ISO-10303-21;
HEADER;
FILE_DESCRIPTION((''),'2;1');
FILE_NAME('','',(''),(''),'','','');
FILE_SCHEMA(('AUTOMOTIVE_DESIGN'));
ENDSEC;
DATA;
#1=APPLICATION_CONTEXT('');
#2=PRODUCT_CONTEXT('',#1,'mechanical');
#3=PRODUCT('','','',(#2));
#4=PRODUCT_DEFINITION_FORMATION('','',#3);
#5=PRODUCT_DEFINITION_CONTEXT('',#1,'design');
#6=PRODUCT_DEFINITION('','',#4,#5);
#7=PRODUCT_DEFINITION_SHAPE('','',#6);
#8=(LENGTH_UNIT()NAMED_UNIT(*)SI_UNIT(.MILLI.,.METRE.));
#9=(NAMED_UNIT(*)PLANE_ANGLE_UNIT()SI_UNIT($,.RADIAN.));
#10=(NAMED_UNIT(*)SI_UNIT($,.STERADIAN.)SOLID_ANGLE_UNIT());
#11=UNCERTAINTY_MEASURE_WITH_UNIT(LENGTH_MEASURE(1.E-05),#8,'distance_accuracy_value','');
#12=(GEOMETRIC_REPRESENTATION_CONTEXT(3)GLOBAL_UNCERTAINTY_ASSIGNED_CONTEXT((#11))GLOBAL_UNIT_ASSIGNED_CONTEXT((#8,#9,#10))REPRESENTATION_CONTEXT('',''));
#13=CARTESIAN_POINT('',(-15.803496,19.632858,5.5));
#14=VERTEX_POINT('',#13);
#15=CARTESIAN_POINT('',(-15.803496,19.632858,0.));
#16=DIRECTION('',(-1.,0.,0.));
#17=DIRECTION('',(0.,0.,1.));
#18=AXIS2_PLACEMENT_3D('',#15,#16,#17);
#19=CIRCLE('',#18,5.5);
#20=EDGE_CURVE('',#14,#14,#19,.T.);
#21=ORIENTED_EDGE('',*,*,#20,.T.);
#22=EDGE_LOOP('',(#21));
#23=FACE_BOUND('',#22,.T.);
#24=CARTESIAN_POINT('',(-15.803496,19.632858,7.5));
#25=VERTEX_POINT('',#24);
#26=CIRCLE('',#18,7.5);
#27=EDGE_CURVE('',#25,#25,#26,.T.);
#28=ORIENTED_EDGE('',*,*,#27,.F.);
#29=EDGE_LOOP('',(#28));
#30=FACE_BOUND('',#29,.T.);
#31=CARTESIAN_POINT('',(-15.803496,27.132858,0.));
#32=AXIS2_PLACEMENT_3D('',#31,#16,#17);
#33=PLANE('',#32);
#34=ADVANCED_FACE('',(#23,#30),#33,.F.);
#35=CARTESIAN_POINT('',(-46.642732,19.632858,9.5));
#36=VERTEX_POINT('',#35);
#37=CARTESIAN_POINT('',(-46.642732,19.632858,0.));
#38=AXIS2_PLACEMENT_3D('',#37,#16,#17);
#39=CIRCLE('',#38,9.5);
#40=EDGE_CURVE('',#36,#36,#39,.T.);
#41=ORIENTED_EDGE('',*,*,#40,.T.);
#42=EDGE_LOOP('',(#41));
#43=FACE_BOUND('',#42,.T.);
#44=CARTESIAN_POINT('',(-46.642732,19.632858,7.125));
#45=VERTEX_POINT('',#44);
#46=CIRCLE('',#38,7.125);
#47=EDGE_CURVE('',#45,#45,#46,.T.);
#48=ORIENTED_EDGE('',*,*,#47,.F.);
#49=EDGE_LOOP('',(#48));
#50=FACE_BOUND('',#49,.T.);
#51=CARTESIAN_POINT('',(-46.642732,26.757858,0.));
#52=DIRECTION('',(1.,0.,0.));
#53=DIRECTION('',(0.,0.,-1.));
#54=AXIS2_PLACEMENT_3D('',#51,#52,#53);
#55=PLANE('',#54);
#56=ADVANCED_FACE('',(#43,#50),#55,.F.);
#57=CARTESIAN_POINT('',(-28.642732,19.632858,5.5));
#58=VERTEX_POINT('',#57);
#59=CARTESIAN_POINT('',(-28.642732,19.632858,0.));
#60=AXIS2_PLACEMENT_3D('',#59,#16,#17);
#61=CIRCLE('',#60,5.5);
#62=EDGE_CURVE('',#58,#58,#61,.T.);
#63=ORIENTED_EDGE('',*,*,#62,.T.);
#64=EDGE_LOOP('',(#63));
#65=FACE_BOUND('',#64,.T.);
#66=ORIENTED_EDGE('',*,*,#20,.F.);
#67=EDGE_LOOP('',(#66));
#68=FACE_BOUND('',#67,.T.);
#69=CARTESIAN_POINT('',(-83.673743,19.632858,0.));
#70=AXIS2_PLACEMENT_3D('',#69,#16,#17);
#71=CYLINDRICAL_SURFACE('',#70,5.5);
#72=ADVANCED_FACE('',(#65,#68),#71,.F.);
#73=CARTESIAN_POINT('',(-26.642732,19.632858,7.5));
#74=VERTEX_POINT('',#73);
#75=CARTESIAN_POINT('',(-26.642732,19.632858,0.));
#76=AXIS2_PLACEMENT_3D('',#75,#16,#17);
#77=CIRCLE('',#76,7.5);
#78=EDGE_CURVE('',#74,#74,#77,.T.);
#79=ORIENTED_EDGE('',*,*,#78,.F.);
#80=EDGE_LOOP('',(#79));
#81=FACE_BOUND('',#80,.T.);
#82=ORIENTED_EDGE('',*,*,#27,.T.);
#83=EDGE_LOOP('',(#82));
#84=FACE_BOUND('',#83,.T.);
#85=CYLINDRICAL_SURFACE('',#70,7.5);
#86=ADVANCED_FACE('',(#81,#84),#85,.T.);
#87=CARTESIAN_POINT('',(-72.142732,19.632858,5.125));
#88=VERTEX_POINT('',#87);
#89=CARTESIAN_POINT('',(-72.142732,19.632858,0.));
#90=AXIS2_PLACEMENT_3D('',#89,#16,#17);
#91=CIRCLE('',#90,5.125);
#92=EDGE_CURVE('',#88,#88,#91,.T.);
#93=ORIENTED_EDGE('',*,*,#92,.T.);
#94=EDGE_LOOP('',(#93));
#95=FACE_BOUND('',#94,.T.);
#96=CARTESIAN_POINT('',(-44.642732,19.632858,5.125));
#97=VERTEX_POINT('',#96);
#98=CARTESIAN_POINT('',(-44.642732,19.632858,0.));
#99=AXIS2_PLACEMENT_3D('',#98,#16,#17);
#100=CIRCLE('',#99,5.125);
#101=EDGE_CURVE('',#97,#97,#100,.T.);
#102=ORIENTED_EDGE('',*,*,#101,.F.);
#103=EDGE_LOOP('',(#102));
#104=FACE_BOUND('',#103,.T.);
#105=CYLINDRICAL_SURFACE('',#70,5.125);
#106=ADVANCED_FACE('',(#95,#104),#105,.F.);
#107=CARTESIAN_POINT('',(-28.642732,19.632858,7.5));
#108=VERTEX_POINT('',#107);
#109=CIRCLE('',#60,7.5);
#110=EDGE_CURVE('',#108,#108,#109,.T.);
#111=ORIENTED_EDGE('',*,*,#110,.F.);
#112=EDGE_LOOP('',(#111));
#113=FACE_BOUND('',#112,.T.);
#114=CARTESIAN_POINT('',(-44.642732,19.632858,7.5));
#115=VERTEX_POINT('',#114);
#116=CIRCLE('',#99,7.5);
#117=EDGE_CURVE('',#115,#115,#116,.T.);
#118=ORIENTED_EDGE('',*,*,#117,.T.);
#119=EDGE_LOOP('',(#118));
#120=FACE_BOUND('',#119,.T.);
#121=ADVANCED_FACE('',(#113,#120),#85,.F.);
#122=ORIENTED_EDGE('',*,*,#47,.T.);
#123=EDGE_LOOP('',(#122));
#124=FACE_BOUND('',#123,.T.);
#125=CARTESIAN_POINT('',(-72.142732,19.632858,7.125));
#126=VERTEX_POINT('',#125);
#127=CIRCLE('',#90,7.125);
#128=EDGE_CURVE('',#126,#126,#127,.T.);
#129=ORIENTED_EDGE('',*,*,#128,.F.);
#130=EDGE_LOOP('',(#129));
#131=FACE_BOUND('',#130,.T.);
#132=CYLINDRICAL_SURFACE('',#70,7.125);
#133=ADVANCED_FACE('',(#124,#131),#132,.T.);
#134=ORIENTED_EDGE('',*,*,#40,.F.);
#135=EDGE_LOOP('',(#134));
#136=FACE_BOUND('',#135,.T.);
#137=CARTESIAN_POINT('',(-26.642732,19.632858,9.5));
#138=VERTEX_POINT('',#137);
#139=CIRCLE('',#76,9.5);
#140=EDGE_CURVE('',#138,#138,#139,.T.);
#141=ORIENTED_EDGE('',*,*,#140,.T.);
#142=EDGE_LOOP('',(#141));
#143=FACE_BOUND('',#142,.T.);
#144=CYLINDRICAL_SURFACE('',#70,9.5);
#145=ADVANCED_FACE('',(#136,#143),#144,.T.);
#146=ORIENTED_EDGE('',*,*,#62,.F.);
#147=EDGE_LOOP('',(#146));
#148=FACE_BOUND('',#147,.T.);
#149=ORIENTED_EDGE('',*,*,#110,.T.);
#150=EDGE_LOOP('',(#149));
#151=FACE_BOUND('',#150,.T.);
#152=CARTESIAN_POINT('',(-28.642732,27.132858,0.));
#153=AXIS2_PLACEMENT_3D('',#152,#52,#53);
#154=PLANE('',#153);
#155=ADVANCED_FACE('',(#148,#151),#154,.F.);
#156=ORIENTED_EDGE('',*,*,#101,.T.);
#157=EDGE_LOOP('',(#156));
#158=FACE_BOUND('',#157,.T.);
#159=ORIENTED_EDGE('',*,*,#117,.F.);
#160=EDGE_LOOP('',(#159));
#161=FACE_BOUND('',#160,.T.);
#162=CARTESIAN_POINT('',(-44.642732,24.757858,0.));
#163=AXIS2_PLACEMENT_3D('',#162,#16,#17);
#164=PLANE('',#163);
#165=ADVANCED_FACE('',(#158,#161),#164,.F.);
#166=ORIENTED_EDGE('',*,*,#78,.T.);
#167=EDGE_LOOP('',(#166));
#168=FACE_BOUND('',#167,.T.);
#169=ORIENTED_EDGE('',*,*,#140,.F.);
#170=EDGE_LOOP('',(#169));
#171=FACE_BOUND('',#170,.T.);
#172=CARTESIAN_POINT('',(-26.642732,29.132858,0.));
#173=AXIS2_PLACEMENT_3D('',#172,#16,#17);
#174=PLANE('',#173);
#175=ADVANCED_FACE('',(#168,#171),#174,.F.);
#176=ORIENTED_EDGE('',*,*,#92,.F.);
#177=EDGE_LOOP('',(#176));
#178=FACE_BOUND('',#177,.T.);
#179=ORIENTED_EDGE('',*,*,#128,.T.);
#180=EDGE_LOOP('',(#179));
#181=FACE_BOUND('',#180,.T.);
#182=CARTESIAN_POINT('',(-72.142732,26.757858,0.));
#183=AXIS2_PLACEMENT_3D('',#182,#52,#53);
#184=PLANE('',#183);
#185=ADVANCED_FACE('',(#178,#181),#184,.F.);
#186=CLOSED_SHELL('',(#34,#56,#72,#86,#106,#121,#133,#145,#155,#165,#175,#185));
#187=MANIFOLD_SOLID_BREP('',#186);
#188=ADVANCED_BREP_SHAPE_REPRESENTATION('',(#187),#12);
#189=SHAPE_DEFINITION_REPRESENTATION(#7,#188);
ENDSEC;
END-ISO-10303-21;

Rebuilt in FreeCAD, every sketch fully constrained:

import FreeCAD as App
import Part
import Sketcher

V = App.Vector
Q = App.Units.Quantity


def add_polygon(sketch, points):
    """Adds a closed chain of lines whose ends are joined by coincident constraints."""
    first, n = sketch.GeometryCount, len(points)
    for a, b in zip(points, points[1:] + points[:1]):
        sketch.addGeometry(Part.LineSegment(App.Vector(*a, 0), App.Vector(*b, 0)), False)
    for i in range(n):
        sketch.addConstraint(Sketcher.Constraint("Coincident", first + i, 2, first + (i + 1) % n, 1))

doc = App.newDocument("Part")
body = doc.addObject("PartDesign::Body", "Body")

sketch1 = body.newObject("Sketcher::SketchObject", "Sketch")
sketch1.AttachmentSupport = (doc.getObject("XY_Plane"), [""])
sketch1.MapMode = "FlatFace"
add_polygon(sketch1, [(-72.1, 24.8), (-44.6, 24.8), (-44.6, 27.1), (-28.6, 27.1), (-28.6, 25.1), (-15.8, 25.1), (-15.8, 27.1), (-26.6, 27.1), (-26.6, 29.1), (-46.6, 29.1), (-46.6, 26.8), (-72.1, 26.8)])
sketch1.addGeometry(Part.LineSegment(V(-72.1, 19.6, 0), V(-15.8, 19.6, 0)), True)
sketch1.addConstraint(Sketcher.Constraint("Horizontal", 0))
sketch1.addConstraint(Sketcher.Constraint("Vertical", 1))
sketch1.addConstraint(Sketcher.Constraint("Horizontal", 2))
sketch1.addConstraint(Sketcher.Constraint("Vertical", 3))
sketch1.addConstraint(Sketcher.Constraint("Horizontal", 4))
sketch1.addConstraint(Sketcher.Constraint("Vertical", 5))
sketch1.addConstraint(Sketcher.Constraint("Horizontal", 6))
sketch1.addConstraint(Sketcher.Constraint("Vertical", 7))
sketch1.addConstraint(Sketcher.Constraint("Horizontal", 8))
sketch1.addConstraint(Sketcher.Constraint("Vertical", 9))
sketch1.addConstraint(Sketcher.Constraint("Horizontal", 10))
sketch1.addConstraint(Sketcher.Constraint("Vertical", 11))
sketch1.addConstraint(Sketcher.Constraint("Horizontal", 12))
sketch1.addConstraint(Sketcher.Constraint("Horizontal", 2, 2, 5, 2))
sketch1.addConstraint(Sketcher.Constraint("Vertical", 11, 2, 12, 1))
sketch1.addConstraint(Sketcher.Constraint("Vertical", 5, 2, 12, 2))
sketch1.addConstraint(Sketcher.Constraint("Equal", 5, 7))
sketch1.addConstraint(Sketcher.Constraint("Equal", 1, 9))
sketch1.addConstraint(Sketcher.Constraint("DistanceX", 2, 1, 2, 2, Q("16 mm")))
sketch1.addConstraint(Sketcher.Constraint("DistanceX", 8, 2, 8, 1, Q("20 mm")))
sketch1.addConstraint(Sketcher.Constraint("DistanceY", 3, 2, 3, 1, Q("2 mm")))
sketch1.addConstraint(Sketcher.Constraint("DistanceX", 0, 1, 0, 2, Q("27.5 mm")))
sketch1.addConstraint(Sketcher.Constraint("DistanceX", 10, 2, 10, 1, Q("25.5 mm")))
sketch1.addConstraint(Sketcher.Constraint("DistanceY", 12, 1, 8, 2, Q("9.5 mm")))
sketch1.addConstraint(Sketcher.Constraint("DistanceY", 1, 1, 1, 2, Q("2.375 mm")))
sketch1.addConstraint(Sketcher.Constraint("DistanceX", 4, 1, 4, 2, Q("12.839236 mm")))
sketch1.addConstraint(Sketcher.Constraint("DistanceX", 0, 2, -1, 1, Q("44.642732 mm")))
sketch1.addConstraint(Sketcher.Constraint("DistanceY", -1, 1, 0, 2, Q("24.757858 mm")))
revolution = body.newObject("PartDesign::Revolution", "Revolution")
revolution.Profile = sketch1
revolution.ReferenceAxis = (sketch1, ["Axis0"])
revolution.Angle = 360

doc.recompute()
